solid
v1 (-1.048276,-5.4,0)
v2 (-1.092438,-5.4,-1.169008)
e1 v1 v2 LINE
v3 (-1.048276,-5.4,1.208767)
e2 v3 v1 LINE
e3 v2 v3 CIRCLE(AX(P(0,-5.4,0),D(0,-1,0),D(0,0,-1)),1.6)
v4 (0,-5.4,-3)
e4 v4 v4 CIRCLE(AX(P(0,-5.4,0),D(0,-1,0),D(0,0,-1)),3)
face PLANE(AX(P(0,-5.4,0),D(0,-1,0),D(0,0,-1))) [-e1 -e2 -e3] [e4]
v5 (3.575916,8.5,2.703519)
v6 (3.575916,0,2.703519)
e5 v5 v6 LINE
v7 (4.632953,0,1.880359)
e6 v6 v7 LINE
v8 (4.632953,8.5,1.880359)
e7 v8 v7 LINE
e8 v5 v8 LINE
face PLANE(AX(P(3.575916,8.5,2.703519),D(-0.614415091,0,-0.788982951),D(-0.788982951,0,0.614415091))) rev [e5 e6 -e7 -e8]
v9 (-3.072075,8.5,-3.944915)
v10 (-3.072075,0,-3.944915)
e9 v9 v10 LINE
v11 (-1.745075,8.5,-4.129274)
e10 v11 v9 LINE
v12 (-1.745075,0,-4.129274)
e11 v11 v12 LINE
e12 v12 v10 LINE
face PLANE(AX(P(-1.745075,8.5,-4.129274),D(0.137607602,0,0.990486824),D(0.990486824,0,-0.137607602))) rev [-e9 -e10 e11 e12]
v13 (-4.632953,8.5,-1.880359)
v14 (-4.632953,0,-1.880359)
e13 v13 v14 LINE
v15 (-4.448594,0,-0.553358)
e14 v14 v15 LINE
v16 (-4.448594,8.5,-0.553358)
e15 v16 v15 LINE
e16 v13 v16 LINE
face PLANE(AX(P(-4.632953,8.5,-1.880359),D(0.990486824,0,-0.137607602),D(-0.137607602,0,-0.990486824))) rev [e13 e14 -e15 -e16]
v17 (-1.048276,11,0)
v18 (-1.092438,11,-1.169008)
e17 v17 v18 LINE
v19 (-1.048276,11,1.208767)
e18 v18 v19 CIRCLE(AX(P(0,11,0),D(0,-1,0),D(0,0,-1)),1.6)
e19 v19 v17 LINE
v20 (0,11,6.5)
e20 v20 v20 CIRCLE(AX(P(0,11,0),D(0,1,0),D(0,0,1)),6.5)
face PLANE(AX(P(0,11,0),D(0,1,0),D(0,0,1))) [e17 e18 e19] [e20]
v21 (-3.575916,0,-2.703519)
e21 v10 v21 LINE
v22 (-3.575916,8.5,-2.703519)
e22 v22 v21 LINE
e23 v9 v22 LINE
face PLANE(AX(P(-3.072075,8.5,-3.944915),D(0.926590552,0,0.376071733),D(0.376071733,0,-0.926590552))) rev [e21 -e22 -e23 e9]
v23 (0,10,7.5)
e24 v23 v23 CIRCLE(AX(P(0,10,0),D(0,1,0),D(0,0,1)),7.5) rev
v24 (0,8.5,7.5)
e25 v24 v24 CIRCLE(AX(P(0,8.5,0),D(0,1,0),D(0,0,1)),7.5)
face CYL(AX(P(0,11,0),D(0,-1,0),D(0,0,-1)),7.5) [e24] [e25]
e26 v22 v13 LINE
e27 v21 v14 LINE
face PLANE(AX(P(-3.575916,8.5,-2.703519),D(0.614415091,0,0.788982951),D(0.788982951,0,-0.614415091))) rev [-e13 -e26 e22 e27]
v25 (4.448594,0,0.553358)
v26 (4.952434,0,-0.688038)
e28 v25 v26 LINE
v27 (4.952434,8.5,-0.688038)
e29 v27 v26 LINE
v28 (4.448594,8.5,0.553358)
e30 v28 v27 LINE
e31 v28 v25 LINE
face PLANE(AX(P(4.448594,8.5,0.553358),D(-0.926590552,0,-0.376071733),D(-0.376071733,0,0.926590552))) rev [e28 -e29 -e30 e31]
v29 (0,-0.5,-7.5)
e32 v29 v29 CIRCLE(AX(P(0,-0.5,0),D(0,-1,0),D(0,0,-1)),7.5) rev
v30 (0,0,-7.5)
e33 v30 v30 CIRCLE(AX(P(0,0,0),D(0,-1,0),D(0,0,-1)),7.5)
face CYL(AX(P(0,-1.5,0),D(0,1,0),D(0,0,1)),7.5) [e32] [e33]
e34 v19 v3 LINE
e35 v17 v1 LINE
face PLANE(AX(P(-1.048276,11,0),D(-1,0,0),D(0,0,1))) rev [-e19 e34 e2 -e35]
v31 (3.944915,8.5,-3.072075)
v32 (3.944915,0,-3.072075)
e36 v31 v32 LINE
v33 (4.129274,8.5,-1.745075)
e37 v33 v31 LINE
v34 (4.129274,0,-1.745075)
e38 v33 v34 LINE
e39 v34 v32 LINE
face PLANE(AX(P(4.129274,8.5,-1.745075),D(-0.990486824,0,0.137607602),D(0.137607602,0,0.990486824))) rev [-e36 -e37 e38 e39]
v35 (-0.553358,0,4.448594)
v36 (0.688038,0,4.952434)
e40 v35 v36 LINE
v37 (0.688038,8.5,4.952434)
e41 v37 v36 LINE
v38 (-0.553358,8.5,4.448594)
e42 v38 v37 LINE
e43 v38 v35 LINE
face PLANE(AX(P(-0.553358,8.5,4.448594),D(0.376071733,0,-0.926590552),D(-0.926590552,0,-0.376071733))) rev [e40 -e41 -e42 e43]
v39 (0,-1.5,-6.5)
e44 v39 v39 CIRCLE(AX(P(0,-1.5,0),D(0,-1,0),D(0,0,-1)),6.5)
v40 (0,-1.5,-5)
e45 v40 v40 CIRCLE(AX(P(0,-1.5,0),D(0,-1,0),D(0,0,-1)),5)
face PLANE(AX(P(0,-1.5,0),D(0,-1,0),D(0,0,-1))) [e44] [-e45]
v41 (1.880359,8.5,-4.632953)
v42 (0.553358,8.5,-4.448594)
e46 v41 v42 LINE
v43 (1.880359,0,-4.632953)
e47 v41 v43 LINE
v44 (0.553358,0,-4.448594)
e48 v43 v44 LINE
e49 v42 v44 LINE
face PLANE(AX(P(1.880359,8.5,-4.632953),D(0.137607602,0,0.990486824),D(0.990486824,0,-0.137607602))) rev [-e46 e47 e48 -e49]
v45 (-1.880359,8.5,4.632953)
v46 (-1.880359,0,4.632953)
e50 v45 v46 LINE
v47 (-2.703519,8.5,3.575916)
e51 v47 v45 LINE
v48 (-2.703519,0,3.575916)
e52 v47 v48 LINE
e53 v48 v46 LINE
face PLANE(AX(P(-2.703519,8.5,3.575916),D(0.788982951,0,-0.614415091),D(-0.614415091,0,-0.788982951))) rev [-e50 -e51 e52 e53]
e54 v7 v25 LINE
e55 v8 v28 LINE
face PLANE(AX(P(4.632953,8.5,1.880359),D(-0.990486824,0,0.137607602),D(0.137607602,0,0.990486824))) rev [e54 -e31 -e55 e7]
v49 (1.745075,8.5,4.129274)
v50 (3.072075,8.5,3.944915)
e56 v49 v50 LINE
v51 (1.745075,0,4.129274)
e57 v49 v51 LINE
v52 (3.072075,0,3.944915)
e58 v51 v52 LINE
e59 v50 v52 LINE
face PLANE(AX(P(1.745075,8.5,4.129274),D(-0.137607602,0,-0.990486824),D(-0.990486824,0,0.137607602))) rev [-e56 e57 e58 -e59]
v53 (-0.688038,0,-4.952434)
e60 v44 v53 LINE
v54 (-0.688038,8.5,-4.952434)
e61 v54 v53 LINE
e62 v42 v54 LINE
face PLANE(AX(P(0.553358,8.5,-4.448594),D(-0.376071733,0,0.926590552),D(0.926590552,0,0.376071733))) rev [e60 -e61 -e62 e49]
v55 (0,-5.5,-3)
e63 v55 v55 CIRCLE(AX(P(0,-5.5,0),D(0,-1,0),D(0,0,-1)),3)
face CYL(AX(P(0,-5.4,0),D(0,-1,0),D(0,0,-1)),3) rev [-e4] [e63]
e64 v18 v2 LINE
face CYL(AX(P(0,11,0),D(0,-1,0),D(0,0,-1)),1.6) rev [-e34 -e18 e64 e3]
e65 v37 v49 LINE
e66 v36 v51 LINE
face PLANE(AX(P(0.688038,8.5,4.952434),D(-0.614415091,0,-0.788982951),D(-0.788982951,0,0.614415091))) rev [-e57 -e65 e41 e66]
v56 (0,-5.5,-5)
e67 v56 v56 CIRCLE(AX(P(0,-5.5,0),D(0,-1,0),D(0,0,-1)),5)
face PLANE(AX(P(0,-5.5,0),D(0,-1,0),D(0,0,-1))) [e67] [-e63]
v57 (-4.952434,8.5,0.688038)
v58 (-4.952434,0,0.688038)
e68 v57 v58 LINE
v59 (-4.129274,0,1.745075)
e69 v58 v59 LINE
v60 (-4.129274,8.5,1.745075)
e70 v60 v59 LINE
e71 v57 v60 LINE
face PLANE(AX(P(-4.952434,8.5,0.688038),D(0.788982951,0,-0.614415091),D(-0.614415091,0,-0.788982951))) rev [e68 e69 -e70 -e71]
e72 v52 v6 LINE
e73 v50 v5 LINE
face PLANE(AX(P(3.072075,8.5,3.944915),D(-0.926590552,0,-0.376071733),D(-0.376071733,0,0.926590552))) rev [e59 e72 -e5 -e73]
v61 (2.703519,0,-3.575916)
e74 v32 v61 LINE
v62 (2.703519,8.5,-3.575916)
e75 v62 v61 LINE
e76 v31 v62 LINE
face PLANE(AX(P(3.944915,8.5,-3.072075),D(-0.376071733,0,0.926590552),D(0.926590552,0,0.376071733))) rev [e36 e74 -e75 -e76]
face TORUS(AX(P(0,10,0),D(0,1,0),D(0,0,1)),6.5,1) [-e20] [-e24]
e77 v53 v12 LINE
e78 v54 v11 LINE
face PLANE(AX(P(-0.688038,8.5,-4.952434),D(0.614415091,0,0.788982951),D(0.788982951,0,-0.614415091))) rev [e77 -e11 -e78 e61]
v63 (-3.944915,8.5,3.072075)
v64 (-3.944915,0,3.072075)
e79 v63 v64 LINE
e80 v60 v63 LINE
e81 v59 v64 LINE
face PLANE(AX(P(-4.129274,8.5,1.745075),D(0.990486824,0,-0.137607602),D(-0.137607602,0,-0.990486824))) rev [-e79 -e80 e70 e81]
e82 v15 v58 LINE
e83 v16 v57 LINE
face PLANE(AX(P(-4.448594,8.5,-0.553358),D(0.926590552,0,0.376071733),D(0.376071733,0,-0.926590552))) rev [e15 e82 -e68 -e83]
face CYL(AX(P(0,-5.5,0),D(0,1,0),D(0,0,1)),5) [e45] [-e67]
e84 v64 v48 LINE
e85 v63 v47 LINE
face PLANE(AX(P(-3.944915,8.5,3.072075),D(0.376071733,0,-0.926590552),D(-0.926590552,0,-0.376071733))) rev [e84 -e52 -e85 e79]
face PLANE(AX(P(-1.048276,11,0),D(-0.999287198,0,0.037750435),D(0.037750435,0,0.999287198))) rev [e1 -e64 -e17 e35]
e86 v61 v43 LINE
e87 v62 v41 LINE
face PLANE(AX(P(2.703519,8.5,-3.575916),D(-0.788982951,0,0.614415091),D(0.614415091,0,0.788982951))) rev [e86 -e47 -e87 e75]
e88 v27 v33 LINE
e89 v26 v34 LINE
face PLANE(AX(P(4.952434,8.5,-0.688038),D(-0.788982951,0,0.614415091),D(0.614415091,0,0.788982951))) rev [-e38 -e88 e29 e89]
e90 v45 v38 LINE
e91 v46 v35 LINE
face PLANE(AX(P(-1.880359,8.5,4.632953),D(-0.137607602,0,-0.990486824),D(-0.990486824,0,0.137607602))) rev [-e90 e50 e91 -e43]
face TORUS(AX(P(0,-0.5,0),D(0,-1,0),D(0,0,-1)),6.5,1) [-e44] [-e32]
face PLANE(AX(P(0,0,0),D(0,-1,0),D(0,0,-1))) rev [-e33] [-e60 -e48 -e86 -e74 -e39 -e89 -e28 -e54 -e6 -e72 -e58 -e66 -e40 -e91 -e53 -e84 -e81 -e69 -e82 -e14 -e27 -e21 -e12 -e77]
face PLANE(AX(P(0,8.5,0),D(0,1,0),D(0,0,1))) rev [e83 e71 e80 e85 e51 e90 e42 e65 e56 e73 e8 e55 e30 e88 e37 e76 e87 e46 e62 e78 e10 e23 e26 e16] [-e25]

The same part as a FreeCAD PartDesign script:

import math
import FreeCAD as App
import Part
import Sketcher
Q = App.Units.Quantity


def edges_at(feature, points):
    """Names of the edges that pass closest to the given points."""
    edges = feature.Shape.Edges
    near = lambda p: min(range(len(edges)), key=lambda i: edges[i].distToShape(Part.Vertex(*p))[0])
    return sorted({f"Edge{near(p) + 1}" for p in points})


def add_polygon(sketch, points):
    """Adds a closed chain of lines whose ends are joined by coincident constraints."""
    first, n = sketch.GeometryCount, len(points)
    for a, b in zip(points, points[1:] + points[:1]):
        sketch.addGeometry(Part.LineSegment(App.Vector(*a, 0), App.Vector(*b, 0)), False)
    for i in range(n):
        sketch.addConstraint(Sketcher.Constraint("Coincident", first + i, 2, first + (i + 1) % n, 1))

doc = App.newDocument("Part")
body = doc.addObject("PartDesign::Body", "Body")

# Sketch on XZ plane
sketch1 = body.newObject("Sketcher::SketchObject", "Sketch")
sketch1.AttachmentSupport = (doc.getObject("XZ_Plane"), [""])
sketch1.MapMode = "FlatFace"
add_polygon(sketch1, [(0.6, -4.4), (-0.7, -5), (-1.7, -4.1), (-3.1, -3.9), (-3.6, -2.7), (-4.6, -1.9), (-4.4, -0.6), (-5, 0.7), (-4.1, 1.7), (-3.9, 3.1), (-2.7, 3.6), (-1.9, 4.6), (-0.6, 4.4), (0.7, 5), (1.7, 4.1), (3.1, 3.9), (3.6, 2.7), (4.6, 1.9), (4.4, 0.6), (5, -0.7), (4.1, -1.7), (3.9, -3.1), (2.7, -3.6), (1.9, -4.6)])  # lines 0-23
sketch1.addConstraint([
    Sketcher.Constraint("Symmetric", 0, 2, 12, 2, -1, 1),
    Sketcher.Constraint("Symmetric", 1, 2, 13, 2, -1, 1),
    Sketcher.Constraint("Symmetric", 2, 2, 14, 2, -1, 1),
    Sketcher.Constraint("Symmetric", 3, 2, 15, 2, -1, 1),
    Sketcher.Constraint("Symmetric", 4, 2, 16, 2, -1, 1),
    Sketcher.Constraint("Symmetric", 5, 2, 17, 2, -1, 1),
    Sketcher.Constraint("Symmetric", 6, 2, 18, 2, -1, 1),
    Sketcher.Constraint("Symmetric", 7, 2, 19, 2, -1, 1),
    Sketcher.Constraint("Symmetric", 8, 2, 20, 2, -1, 1),
    Sketcher.Constraint("Symmetric", 9, 2, 21, 2, -1, 1),
    Sketcher.Constraint("Symmetric", 10, 2, 22, 2, -1, 1),
    Sketcher.Constraint("Symmetric", 11, 2, 23, 2, -1, 1),
    Sketcher.Constraint("Perpendicular", 0, 3),
    Sketcher.Constraint("Parallel", 1, 4),
    Sketcher.Constraint("Perpendicular", 2, 5),
    Sketcher.Constraint("Parallel", 3, 6),
    Sketcher.Constraint("Perpendicular", 4, 7),
    Sketcher.Constraint("Parallel", 5, 8),
    Sketcher.Constraint("Perpendicular", 6, 9),
    Sketcher.Constraint("Parallel", 7, 10),
    Sketcher.Constraint("Perpendicular", 8, 11),
    Sketcher.Constraint("Equal", 0, 1),
    Sketcher.Constraint("Equal", 1, 2),
    Sketcher.Constraint("Equal", 2, 3),
    Sketcher.Constraint("Equal", 3, 4),
    Sketcher.Constraint("Equal", 4, 5),
    Sketcher.Constraint("Equal", 5, 6),
    Sketcher.Constraint("Equal", 6, 7),
    Sketcher.Constraint("Equal", 7, 8),
    Sketcher.Constraint("Equal", 8, 9),
    Sketcher.Constraint("Equal", 9, 10),
    Sketcher.Constraint("Equal", 10, 11),
    Sketcher.Constraint("DistanceX", 2, 2, 1, 2, Q("1.327001 mm")),
    Sketcher.Constraint("DistanceX", 8, 2, 3, 2, Q("0.368999 mm")),
    Sketcher.Constraint("DistanceX", 7, 2, 2, 2, Q("1.057199 mm")),
    Sketcher.Constraint("DistanceX", 0, 2, -1, 1, Q("0.688038 mm")),
])
pad1 = body.newObject("PartDesign::Pad", "Pad")
pad1.Profile = sketch1
pad1.Length = 8.5
pad1.Reversed = True

# Sketch on XZ plane
sketch2 = body.newObject("Sketcher::SketchObject", "Sketch001")
sketch2.AttachmentSupport = (doc.getObject("XZ_Plane"), [""])
sketch2.MapMode = "FlatFace"
sketch2.AttachmentOffset = App.Placement(App.Vector(0, 0, -8.5), App.Rotation())
sketch2.addGeometry(Part.Circle(App.Vector(0, 0, 0), App.Vector(0, 0, 1), 8), False)
sketch2.addConstraint([
    Sketcher.Constraint("Coincident", 0, 3, -1, 1),
    Sketcher.Constraint("Diameter", 0, Q("15 mm")),
])
pad2 = body.newObject("PartDesign::Pad", "Pad001")
pad2.Profile = sketch2
pad2.Length = 2.5
pad2.Reversed = True

# Sketch on XZ plane
sketch3 = body.newObject("Sketcher::SketchObject", "Sketch002")
sketch3.AttachmentSupport = (doc.getObject("XZ_Plane"), [""])
sketch3.MapMode = "FlatFace"
sketch3.AttachmentOffset = App.Placement(App.Vector(0, 0, 1.5), App.Rotation())
sketch3.addGeometry(Part.Circle(App.Vector(0, 0, 0), App.Vector(0, 0, 1), 8), False)
sketch3.addConstraint([
    Sketcher.Constraint("Coincident", 0, 3, -1, 1),
    Sketcher.Constraint("Diameter", 0, Q("15 mm")),
])
pad3 = body.newObject("PartDesign::Pad", "Pad002")
pad3.Profile = sketch3
pad3.Length = 1.5
pad3.Reversed = True

# Sketch on XZ plane
sketch4 = body.newObject("Sketcher::SketchObject", "Sketch003")
sketch4.AttachmentSupport = (doc.getObject("XZ_Plane"), [""])
sketch4.MapMode = "FlatFace"
sketch4.AttachmentOffset = App.Placement(App.Vector(0, 0, 1.5), App.Rotation())
sketch4.addGeometry(Part.Circle(App.Vector(0, 0, 0), App.Vector(0, 0, 1), 5), False)
sketch4.addConstraint([
    Sketcher.Constraint("Coincident", 0, 3, -1, 1),
    Sketcher.Constraint("Diameter", 0, Q("10 mm")),
])
pad4 = body.newObject("PartDesign::Pad", "Pad003")
pad4.Profile = sketch4
pad4.Length = 4

# Sketch on XZ plane
sketch5 = body.newObject("Sketcher::SketchObject", "Sketch004")
sketch5.AttachmentSupport = (doc.getObject("XZ_Plane"), [""])
sketch5.MapMode = "FlatFace"
sketch5.AttachmentOffset = App.Placement(App.Vector(0, 0, 5.5), App.Rotation())
sketch5.addGeometry(Part.Circle(App.Vector(0, 0, 0), App.Vector(0, 0, 1), 3), False)
sketch5.addConstraint([
    Sketcher.Constraint("Coincident", 0, 3, -1, 1),
    Sketcher.Constraint("Diameter", 0, Q("6 mm")),
])
pocket1 = body.newObject("PartDesign::Pocket", "Pocket")
pocket1.Profile = sketch5
pocket1.Length = 0.1
doc.recompute()

fillet = body.newObject("PartDesign::Fillet", "Fillet")
fillet.Base = (pocket1, edges_at(pocket1, [(0, 11, -7.5), (0, -1.5, -7.5)]))
fillet.Radius = 1

# Sketch on XZ plane
sketch6 = body.newObject("Sketcher::SketchObject", "Sketch005")
sketch6.AttachmentSupport = (doc.getObject("XZ_Plane"), [""])
sketch6.MapMode = "FlatFace"
sketch6.AttachmentOffset = App.Placement(App.Vector(0, 0, 5.4), App.Rotation())
sketch6.addGeometry([
    Part.LineSegment(App.Vector(-1, 0, 0), App.Vector(-1.1, -1.2, 0)),
    Part.ArcOfCircle(Part.Circle(App.Vector(0, 0, 0), App.Vector(0, 0, 1), 1.6), math.radians(-133), math.radians(131)),
    Part.LineSegment(App.Vector(-1, 1.2, 0), App.Vector(-1, 0, 0)),
], False)
sketch6.addConstraint([
    Sketcher.Constraint("Coincident", 0, 2, 1, 1),
    Sketcher.Constraint("Coincident", 1, 2, 2, 1),
    Sketcher.Constraint("Coincident", 2, 2, 0, 1),
    Sketcher.Constraint("Vertical", 2),
    Sketcher.Constraint("Coincident", 1, 3, -1, 1),
    Sketcher.Constraint("PointOnObject", 2, 2, -1),
    Sketcher.Constraint("Radius", 1, Q("1.6 mm")),
    Sketcher.Constraint("Distance", 0, Q("1.169842 mm")),
    Sketcher.Constraint("DistanceY", 2, 2, 2, 1, Q("1.208767 mm")),
])
pocket2 = body.newObject("PartDesign::Pocket", "Pocket001")
pocket2.Profile = sketch6
pocket2.Type = "ThroughAll"

doc.recompute()
